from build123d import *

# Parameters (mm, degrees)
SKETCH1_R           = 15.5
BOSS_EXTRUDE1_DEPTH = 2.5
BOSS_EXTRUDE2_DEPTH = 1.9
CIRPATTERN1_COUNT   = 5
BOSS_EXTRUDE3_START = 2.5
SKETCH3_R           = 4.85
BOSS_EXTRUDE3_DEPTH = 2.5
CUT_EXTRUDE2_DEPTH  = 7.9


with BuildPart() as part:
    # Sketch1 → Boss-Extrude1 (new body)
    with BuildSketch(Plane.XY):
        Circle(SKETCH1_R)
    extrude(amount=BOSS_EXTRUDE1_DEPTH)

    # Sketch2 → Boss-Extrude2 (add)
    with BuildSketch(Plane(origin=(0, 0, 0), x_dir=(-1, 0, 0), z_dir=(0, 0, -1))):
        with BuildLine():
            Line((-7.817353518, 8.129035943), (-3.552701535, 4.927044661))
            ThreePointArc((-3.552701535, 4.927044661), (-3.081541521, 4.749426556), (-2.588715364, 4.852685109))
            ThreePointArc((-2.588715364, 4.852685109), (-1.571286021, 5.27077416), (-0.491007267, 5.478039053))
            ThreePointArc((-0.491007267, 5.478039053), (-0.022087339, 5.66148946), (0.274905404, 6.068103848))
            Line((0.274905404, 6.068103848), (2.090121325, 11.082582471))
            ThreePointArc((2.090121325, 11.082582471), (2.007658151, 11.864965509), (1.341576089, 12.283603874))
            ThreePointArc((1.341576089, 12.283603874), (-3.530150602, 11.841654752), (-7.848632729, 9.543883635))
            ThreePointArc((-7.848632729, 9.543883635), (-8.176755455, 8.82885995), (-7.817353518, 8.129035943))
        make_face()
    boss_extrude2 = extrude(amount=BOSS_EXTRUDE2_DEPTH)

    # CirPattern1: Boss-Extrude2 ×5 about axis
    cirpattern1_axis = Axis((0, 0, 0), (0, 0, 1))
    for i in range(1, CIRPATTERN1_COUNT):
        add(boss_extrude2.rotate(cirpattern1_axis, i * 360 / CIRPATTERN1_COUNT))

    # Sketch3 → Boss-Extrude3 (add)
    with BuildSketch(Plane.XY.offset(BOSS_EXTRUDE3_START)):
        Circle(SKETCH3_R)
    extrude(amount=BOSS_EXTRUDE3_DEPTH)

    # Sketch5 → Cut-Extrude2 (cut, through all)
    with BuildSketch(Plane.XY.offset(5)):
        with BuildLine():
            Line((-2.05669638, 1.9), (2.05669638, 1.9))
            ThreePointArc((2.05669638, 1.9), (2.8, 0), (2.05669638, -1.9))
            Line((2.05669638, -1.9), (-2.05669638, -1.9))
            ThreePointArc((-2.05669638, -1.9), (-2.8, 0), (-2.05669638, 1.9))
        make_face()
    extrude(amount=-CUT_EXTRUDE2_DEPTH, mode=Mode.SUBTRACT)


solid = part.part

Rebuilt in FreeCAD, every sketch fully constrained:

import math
import FreeCAD as App
import Part
import Sketcher
from FreeCAD import Vector
Q = App.Units.Quantity

doc = App.newDocument("Part")
params = doc.addObject("Spreadsheet::Sheet", "Params")
for row, (alias, value) in enumerate([
    ("sketch1_diameter", "31 mm"),
    ("pad1_length", "2.5 mm"),
    ("sketch2_radius", "0.9 mm"),
    ("sketch2_radius2", "5.5 mm"),
    ("pad2_length", "1.9 mm"),
    ("sketch3_diameter", "9.7 mm"),
    ("pad3_length", "2.5 mm"),
    ("sketch4_radius", "2.8 mm"),
], start=1):
    params.set(f"A{row}", alias)
    params.set(f"B{row}", "=" + value)
    params.setAlias(f"B{row}", alias)

body = doc.addObject("PartDesign::Body", "Body")

sketch1 = body.newObject("Sketcher::SketchObject", "Sketch")
sketch1.AttachmentSupport = (doc.getObject("XY_Plane"), [""])
sketch1.MapMode = "FlatFace"
sketch1.addGeometry(Part.Circle(Vector(0, 0, 0), Vector(0, 0, 1), 15.5), False)
sketch1.addConstraint(Sketcher.Constraint("Coincident", 0, 3, -1, 1))
sketch1.addConstraint(Sketcher.Constraint("Diameter", 0, 31.0))
sketch1.setExpression("Constraints[1]", "Params.sketch1_diameter")
pad1 = body.newObject("PartDesign::Pad", "Pad")
pad1.Profile = sketch1
pad1.setExpression("Length", "Params.pad1_length")

sketch2 = body.newObject("Sketcher::SketchObject", "Sketch001")
sketch2.AttachmentSupport = (doc.getObject("XY_Plane"), [""])
sketch2.MapMode = "FlatFace"
sketch2.addGeometry(Part.LineSegment(Vector(7.817354, 8.129036, 0), Vector(3.552702, 4.927045, 0)), False)
sketch2.addGeometry(Part.ArcOfCircle(Part.Circle(Vector(3.012323, 5.646761, 0), Vector(0, 0, 1), 0.9), math.radians(-118.078155), math.radians(-53.1)), False)
sketch2.addGeometry(Part.ArcOfCircle(Part.Circle(Vector(0, 0, 0), Vector(0, 0, 1), 5.5), math.radians(61.921845), math.radians(84.878155)), False)
sketch2.addGeometry(Part.ArcOfCircle(Part.Circle(Vector(0.571354, 6.374445, 0), Vector(0, 0, 1), 0.9), math.radians(-160.1), math.radians(-95.121845)), False)
sketch2.addGeometry(Part.LineSegment(Vector(-0.274905, 6.068104, 0), Vector(-2.090121, 11.082582, 0)), False)
sketch2.addGeometry(Part.ArcOfCircle(Part.Circle(Vector(-1.243862, 11.388924, 0), Vector(0, 0, 1), 0.9), math.radians(96.232958), math.radians(199.9)), False)
sketch2.addGeometry(Part.ArcOfCircle(Part.Circle(Vector(0, 0, 0), Vector(0, 0, 1), 12.356648), math.radians(50.567042), math.radians(96.232958)), False)
sketch2.addGeometry(Part.ArcOfCircle(Part.Circle(Vector(7.276975, 8.848752, 0), Vector(0, 0, 1), 0.9), math.radians(-53.1), math.radians(50.567042)), False)
sketch2.addConstraint(Sketcher.Constraint("Tangent", 0, 2, 1, 2))
sketch2.addConstraint(Sketcher.Constraint("Tangent", 1, 1, 2, 1))
sketch2.addConstraint(Sketcher.Constraint("Tangent", 2, 2, 3, 2))
sketch2.addConstraint(Sketcher.Constraint("Tangent", 3, 1, 4, 1))
sketch2.addConstraint(Sketcher.Constraint("Tangent", 4, 2, 5, 2))
sketch2.addConstraint(Sketcher.Constraint("Tangent", 5, 1, 6, 2))
sketch2.addConstraint(Sketcher.Constraint("Tangent", 6, 1, 7, 2))
sketch2.addConstraint(Sketcher.Constraint("Tangent", 7, 1, 0, 1))
sketch2.addConstraint(Sketcher.Constraint("Coincident", 2, 3, -1, 1))
sketch2.addConstraint(Sketcher.Constraint("Coincident", 6, 3, -1, 1))
sketch2.addConstraint(Sketcher.Constraint("Equal", 1, 3))
sketch2.addConstraint(Sketcher.Constraint("Equal", 3, 5))
sketch2.addConstraint(Sketcher.Constraint("Equal", 5, 7))
sketch2.addConstraint(Sketcher.Constraint("Equal", 0, 4))
sketch2.addConstraint(Sketcher.Constraint("Radius", 1, 0.9))
sketch2.addConstraint(Sketcher.Constraint("Radius", 2, 5.5))
sketch2.addConstraint(Sketcher.Constraint("Angle", 0, Q("-143.1 deg")))
sketch2.addConstraint(Sketcher.Constraint("Angle", 4, Q("109.9 deg")))
sketch2.addConstraint(Sketcher.Constraint("Radius", 6, 12.356648))
sketch2.addConstraint(Sketcher.Constraint("DistanceX", -1, 1, 0, 2, 3.552702))
sketch2.setExpression("Constraints[14]", "Params.sketch2_radius")
sketch2.setExpression("Constraints[15]", "Params.sketch2_radius2")
pad2 = body.newObject("PartDesign::Pad", "Pad001")
pad2.Profile = sketch2
pad2.setExpression("Length", "Params.pad2_length")
pad2.Reversed = True
doc.recompute()

polarpattern = body.newObject("PartDesign::PolarPattern", "PolarPattern")
polarpattern.Originals = [pad2]
polarpattern.Axis = (doc.getObject("Z_Axis"), [""])
polarpattern.Angle = 360
polarpattern.Occurrences = 5
body.Tip = polarpattern

sketch3 = body.newObject("Sketcher::SketchObject", "Sketch002")
sketch3.AttachmentSupport = (doc.getObject("XY_Plane"), [""])
sketch3.MapMode = "FlatFace"
sketch3.AttachmentOffset = App.Placement(Vector(0, 0, 2.5), App.Rotation())
sketch3.addGeometry(Part.Circle(Vector(0, 0, 0), Vector(0, 0, 1), 4.85), False)
sketch3.addConstraint(Sketcher.Constraint("Coincident", 0, 3, -1, 1))
sketch3.addConstraint(Sketcher.Constraint("Diameter", 0, 9.7))
sketch3.setExpression("Constraints[1]", "Params.sketch3_diameter")
pad3 = body.newObject("PartDesign::Pad", "Pad002")
pad3.Profile = sketch3
pad3.setExpression("Length", "Params.pad3_length")

sketch4 = body.newObject("Sketcher::SketchObject", "Sketch003")
sketch4.AttachmentSupport = (doc.getObject("XY_Plane"), [""])
sketch4.MapMode = "FlatFace"
sketch4.AttachmentOffset = App.Placement(Vector(0, 0, 5), App.Rotation())
sketch4.addGeometry(Part.LineSegment(Vector(2.056696, 1.9, 0), Vector(-2.056696, 1.9, 0)), False)
sketch4.addGeometry(Part.ArcOfCircle(Part.Circle(Vector(0, 0, 0), Vector(0, 0, 1), 2.8), math.radians(137.26789), math.radians(222.73211)), False)
sketch4.addGeometry(Part.LineSegment(Vector(-2.056696, -1.9, 0), Vector(2.056696, -1.9, 0)), False)
sketch4.addGeometry(Part.ArcOfCircle(Part.Circle(Vector(0, 0, 0), Vector(0, 0, 1), 2.8), math.radians(-42.73211), math.radians(42.73211)), False)
sketch4.addConstraint(Sketcher.Constraint("Coincident", 0, 2, 1, 1))
sketch4.addConstraint(Sketcher.Constraint("Coincident", 1, 2, 2, 1))
sketch4.addConstraint(Sketcher.Constraint("Coincident", 2, 2, 3, 1))
sketch4.addConstraint(Sketcher.Constraint("Coincident", 3, 2, 0, 1))
sketch4.addConstraint(Sketcher.Constraint("Horizontal", 0))
sketch4.addConstraint(Sketcher.Constraint("Horizontal", 2))
sketch4.addConstraint(Sketcher.Constraint("Coincident", 1, 3, -1, 1))
sketch4.addConstraint(Sketcher.Constraint("Coincident", 3, 3, -1, 1))
sketch4.addConstraint(Sketcher.Constraint("Equal", 1, 3))
sketch4.addConstraint(Sketcher.Constraint("Vertical", 0, 2, 1, 2))
sketch4.addConstraint(Sketcher.Constraint("Radius", 1, 2.8))
sketch4.addConstraint(Sketcher.Constraint("DistanceY", -1, 1, 0, 2, 1.9))
sketch4.setExpression("Constraints[10]", "Params.sketch4_radius")
pocket1 = body.newObject("PartDesign::Pocket", "Pocket")
pocket1.Profile = sketch4
pocket1.Type = "ThroughAll"

doc.recompute()
